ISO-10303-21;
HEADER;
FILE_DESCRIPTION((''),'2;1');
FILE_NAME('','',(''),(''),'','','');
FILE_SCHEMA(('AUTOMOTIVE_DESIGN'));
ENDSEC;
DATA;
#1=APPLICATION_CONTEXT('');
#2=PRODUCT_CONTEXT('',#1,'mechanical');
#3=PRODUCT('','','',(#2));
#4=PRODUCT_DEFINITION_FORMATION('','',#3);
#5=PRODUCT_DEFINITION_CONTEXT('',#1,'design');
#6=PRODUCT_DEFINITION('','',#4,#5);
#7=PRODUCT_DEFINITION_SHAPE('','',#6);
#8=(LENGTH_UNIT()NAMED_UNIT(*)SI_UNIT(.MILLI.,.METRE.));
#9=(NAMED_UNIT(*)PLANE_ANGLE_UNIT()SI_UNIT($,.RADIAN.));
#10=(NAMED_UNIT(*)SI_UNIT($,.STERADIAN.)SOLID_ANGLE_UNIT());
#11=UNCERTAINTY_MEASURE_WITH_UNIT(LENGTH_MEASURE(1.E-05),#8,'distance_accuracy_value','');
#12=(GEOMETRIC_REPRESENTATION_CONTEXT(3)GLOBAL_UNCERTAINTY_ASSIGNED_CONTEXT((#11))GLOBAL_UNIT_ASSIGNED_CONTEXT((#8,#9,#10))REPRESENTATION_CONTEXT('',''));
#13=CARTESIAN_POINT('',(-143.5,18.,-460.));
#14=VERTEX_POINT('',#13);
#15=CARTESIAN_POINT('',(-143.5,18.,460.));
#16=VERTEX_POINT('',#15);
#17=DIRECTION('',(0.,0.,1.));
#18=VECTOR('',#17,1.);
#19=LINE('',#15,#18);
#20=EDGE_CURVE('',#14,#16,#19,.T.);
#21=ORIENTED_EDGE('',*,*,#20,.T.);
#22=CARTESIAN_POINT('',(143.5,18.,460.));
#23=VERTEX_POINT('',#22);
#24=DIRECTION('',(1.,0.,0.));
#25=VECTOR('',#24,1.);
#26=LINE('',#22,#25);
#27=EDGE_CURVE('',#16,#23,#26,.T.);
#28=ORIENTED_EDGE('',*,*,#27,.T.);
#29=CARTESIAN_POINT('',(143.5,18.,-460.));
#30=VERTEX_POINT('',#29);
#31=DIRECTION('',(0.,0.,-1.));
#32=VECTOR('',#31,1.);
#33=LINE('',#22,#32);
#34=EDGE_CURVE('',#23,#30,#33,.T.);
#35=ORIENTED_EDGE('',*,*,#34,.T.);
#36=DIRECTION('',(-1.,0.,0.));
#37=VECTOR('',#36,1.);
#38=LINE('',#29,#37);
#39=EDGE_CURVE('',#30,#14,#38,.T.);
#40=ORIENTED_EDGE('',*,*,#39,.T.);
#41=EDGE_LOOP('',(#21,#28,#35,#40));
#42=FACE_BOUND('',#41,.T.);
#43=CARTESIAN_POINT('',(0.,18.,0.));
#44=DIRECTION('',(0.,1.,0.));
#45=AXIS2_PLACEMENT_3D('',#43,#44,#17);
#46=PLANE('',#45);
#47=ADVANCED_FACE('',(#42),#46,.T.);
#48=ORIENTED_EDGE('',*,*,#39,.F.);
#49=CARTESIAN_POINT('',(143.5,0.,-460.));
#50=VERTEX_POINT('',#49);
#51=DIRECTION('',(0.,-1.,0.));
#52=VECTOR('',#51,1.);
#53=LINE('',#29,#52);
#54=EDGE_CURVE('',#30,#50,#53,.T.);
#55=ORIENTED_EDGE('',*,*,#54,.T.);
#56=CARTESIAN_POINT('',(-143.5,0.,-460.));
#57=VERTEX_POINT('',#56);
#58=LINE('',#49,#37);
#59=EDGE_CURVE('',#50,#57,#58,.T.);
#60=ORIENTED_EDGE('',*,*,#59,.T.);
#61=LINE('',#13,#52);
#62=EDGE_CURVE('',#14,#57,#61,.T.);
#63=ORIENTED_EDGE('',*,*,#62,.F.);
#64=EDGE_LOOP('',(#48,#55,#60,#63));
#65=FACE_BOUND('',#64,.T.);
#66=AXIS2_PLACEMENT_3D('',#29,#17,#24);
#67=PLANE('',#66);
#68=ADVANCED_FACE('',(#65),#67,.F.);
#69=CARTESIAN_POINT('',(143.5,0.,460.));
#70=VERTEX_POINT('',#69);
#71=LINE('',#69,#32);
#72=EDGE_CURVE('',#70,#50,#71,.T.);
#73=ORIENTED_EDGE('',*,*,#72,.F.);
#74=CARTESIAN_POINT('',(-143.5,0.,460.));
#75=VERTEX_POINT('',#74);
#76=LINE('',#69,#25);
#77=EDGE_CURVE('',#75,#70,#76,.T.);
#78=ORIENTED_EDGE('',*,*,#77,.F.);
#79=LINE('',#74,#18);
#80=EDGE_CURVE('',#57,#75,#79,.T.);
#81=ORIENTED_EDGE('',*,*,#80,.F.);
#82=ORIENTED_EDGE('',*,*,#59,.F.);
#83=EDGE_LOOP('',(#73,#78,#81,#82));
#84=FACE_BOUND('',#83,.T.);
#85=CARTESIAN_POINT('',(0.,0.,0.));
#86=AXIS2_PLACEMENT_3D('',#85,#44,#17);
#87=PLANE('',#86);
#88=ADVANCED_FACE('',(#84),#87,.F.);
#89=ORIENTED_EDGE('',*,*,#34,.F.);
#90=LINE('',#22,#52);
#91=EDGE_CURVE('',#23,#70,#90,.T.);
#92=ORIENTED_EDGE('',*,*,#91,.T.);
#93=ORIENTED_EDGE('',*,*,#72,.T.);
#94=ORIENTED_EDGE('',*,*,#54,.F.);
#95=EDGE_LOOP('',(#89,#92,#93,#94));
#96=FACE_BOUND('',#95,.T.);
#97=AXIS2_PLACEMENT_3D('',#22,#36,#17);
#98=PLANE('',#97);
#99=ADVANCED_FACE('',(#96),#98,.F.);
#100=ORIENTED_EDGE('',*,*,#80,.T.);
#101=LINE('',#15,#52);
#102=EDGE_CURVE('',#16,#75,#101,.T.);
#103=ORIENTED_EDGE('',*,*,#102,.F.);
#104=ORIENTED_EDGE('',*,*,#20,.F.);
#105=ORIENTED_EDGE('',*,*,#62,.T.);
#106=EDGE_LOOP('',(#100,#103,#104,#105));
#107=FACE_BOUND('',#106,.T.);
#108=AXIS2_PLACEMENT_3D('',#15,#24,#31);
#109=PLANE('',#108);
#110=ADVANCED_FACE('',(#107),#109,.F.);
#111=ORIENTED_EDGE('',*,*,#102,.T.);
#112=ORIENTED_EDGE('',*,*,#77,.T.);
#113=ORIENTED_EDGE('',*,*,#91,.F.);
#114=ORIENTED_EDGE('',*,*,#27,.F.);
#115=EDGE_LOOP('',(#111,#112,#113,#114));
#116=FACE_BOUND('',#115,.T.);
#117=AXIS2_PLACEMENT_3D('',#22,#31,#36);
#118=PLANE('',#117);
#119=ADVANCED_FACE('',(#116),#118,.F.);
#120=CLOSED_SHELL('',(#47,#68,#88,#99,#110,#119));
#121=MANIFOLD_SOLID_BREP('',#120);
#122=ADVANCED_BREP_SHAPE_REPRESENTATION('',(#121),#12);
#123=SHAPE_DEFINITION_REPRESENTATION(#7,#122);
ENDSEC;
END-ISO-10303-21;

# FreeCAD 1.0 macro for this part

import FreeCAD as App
import Part
import Sketcher

V = App.Vector
Q = App.Units.Quantity


def add_polygon(sketch, points):
    """Adds a closed chain of lines whose ends are joined by coincident constraints."""
    first, n = sketch.GeometryCount, len(points)
    for a, b in zip(points, points[1:] + points[:1]):
        sketch.addGeometry(Part.LineSegment(App.Vector(*a, 0), App.Vector(*b, 0)), False)
    for i in range(n):
        sketch.addConstraint(Sketcher.Constraint("Coincident", first + i, 2, first + (i + 1) % n, 1))

doc = App.newDocument("Part")
body = doc.addObject("PartDesign::Body", "Body")

# Sketch on XZ plane
sketch1 = body.newObject("Sketcher::SketchObject", "Sketch")
sketch1.AttachmentSupport = (doc.getObject("XZ_Plane"), [""])
sketch1.MapMode = "FlatFace"
add_polygon(sketch1, [(-144, -460), (-144, 460), (144, 460), (144, -460)])  # lines 0-3
sketch1.addConstraint([
    Sketcher.Constraint("Vertical", 0),
    Sketcher.Constraint("Horizontal", 1),
    Sketcher.Constraint("Vertical", 2),
    Sketcher.Constraint("Horizontal", 3),
    Sketcher.Constraint("Symmetric", 0, 2, 2, 2, -1, 1),
    Sketcher.Constraint("DistanceX", 1, 1, 1, 2, Q("287 mm")),
    Sketcher.Constraint("DistanceY", 0, 1, 0, 2, Q("920 mm")),
])
pad1 = body.newObject("PartDesign::Pad", "Pad")
pad1.Profile = sketch1
pad1.Length = 18
pad1.Reversed = True

doc.recompute()
